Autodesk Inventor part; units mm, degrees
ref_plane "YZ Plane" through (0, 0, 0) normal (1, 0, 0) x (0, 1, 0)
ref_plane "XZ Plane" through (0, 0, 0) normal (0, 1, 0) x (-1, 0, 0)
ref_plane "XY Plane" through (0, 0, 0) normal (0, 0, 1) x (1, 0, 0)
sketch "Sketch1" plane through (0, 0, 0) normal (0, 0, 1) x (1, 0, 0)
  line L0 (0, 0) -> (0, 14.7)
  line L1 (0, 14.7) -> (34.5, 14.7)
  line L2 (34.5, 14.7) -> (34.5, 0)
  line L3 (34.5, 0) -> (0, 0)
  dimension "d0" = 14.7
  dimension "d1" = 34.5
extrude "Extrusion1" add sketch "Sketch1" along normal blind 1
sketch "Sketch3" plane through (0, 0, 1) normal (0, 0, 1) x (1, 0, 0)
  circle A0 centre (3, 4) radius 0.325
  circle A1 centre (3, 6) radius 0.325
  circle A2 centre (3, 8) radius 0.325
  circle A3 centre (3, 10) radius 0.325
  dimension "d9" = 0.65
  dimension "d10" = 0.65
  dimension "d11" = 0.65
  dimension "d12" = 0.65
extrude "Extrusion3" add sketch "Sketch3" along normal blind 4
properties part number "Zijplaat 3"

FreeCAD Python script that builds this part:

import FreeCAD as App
import Part
import Sketcher
Q = App.Units.Quantity


def add_polygon(sketch, points):
    """Adds a closed chain of lines whose ends are joined by coincident constraints."""
    first, n = sketch.GeometryCount, len(points)
    for a, b in zip(points, points[1:] + points[:1]):
        sketch.addGeometry(Part.LineSegment(App.Vector(*a, 0), App.Vector(*b, 0)), False)
    for i in range(n):
        sketch.addConstraint(Sketcher.Constraint("Coincident", first + i, 2, first + (i + 1) % n, 1))

doc = App.newDocument("Part")
body = doc.addObject("PartDesign::Body", "Body")

sketch1 = body.newObject("Sketcher::SketchObject", "Sketch")
sketch1.AttachmentSupport = (doc.getObject("XY_Plane"), [""])
sketch1.MapMode = "FlatFace"
add_polygon(sketch1, [(0, 15), (0, 0), (34, 0), (34, 15)])
sketch1.addConstraint(Sketcher.Constraint("Vertical", 0))
sketch1.addConstraint(Sketcher.Constraint("Horizontal", 1))
sketch1.addConstraint(Sketcher.Constraint("Vertical", 2))
sketch1.addConstraint(Sketcher.Constraint("Horizontal", 3))
sketch1.addConstraint(Sketcher.Constraint("Coincident", 0, 2, -1, 1))
sketch1.addConstraint(Sketcher.Constraint("DistanceX", 1, 1, 1, 2, Q("34.5 mm")))
sketch1.addConstraint(Sketcher.Constraint("DistanceY", 0, 2, 0, 1, Q("14.7 mm")))
pad1 = body.newObject("PartDesign::Pad", "Pad")
pad1.Profile = sketch1
pad1.Length = 1

sketch2 = body.newObject("Sketcher::SketchObject", "Sketch001")
sketch2.AttachmentSupport = (doc.getObject("XY_Plane"), [""])
sketch2.MapMode = "FlatFace"
sketch2.AttachmentOffset = App.Placement(App.Vector(0, 0, 1), App.Rotation())
sketch2.addGeometry(Part.Circle(App.Vector(3, 4, 0), App.Vector(0, 0, 1), 0.33), False)
sketch2.addGeometry(Part.Circle(App.Vector(3, 6, 0), App.Vector(0, 0, 1), 0.33), False)
sketch2.addGeometry(Part.Circle(App.Vector(3, 8, 0), App.Vector(0, 0, 1), 0.33), False)
sketch2.addGeometry(Part.Circle(App.Vector(3, 10, 0), App.Vector(0, 0, 1), 0.33), False)
sketch2.addConstraint(Sketcher.Constraint("Equal", 0, 1))
sketch2.addConstraint(Sketcher.Constraint("Equal", 1, 2))
sketch2.addConstraint(Sketcher.Constraint("Equal", 2, 3))
sketch2.addConstraint(Sketcher.Constraint("Vertical", 0, 3, 1, 3))
sketch2.addConstraint(Sketcher.Constraint("Vertical", 1, 3, 2, 3))
sketch2.addConstraint(Sketcher.Constraint("Vertical", 2, 3, 3, 3))
sketch2.addConstraint(Sketcher.Constraint("Diameter", 0, Q("0.65 mm")))
sketch2.addConstraint(Sketcher.Constraint("DistanceX", -1, 1, 0, 3, Q("3 mm")))
sketch2.addConstraint(Sketcher.Constraint("DistanceY", -1, 1, 0, 3, Q("4 mm")))
sketch2.addConstraint(Sketcher.Constraint("DistanceY", -1, 1, 1, 3, Q("6 mm")))
sketch2.addConstraint(Sketcher.Constraint("DistanceY", -1, 1, 2, 3, Q("8 mm")))
sketch2.addConstraint(Sketcher.Constraint("DistanceY", -1, 1, 3, 3, Q("10 mm")))
pad2 = body.newObject("PartDesign::Pad", "Pad001")
pad2.Profile = sketch2
pad2.Length = 4

doc.recompute()
